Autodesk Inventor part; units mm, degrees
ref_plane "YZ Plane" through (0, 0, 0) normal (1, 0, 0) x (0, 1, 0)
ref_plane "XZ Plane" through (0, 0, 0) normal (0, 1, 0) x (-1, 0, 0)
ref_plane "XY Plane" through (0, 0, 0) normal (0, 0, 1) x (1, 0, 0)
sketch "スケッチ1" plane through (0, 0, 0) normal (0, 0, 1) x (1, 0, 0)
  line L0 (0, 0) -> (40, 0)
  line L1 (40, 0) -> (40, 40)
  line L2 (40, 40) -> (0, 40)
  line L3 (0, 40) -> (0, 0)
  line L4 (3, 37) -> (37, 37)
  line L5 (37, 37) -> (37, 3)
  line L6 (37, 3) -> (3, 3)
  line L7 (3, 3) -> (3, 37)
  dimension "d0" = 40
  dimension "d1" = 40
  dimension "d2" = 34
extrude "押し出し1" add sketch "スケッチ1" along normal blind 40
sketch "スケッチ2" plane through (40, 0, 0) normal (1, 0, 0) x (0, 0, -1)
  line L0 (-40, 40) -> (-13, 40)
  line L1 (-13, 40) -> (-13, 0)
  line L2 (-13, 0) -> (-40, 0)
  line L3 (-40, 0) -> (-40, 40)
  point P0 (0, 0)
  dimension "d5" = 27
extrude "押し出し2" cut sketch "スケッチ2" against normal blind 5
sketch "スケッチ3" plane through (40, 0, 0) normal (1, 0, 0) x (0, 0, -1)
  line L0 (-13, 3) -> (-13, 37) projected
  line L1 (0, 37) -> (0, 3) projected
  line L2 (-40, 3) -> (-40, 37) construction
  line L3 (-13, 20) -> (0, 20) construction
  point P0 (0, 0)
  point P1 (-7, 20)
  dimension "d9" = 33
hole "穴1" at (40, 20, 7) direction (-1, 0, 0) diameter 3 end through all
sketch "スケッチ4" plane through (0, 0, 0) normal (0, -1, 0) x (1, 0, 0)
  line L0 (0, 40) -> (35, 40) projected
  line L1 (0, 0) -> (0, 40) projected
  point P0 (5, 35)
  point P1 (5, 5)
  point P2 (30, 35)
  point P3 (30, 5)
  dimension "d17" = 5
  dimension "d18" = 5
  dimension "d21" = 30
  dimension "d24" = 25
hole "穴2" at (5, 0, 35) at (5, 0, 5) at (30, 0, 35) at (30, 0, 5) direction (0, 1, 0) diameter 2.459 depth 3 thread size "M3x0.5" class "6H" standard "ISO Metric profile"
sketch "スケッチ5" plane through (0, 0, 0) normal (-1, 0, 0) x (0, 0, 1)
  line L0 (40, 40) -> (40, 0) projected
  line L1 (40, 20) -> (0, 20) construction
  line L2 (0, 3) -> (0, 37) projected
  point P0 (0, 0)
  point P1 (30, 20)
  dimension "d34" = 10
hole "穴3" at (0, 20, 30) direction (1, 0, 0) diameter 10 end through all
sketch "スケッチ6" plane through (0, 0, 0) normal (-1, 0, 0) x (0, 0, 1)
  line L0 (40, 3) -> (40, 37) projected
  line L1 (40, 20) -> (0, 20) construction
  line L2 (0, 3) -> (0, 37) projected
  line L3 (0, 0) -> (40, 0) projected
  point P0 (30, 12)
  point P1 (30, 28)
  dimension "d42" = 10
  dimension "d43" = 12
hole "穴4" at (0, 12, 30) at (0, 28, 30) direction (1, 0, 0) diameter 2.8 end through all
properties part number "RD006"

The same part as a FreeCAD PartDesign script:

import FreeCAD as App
import Part
import Sketcher
Q = App.Units.Quantity

doc = App.newDocument("Part")
body = doc.addObject("PartDesign::Body", "Body")

# Sketch on XY plane
sketch1 = doc.addObject("Sketcher::SketchObject", "Sketch")
body.addObject(sketch1)
sketch1.AttachmentSupport = (doc.XY_Plane, [""])
sketch1.MapMode = "FlatFace"
sketch1.addGeometry(Part.LineSegment(App.Vector(0, 40, 0), App.Vector(0, 0, 0)), False)
sketch1.addGeometry(Part.LineSegment(App.Vector(0, 0, 0), App.Vector(40, 0, 0)), False)
sketch1.addGeometry(Part.LineSegment(App.Vector(40, 0, 0), App.Vector(40, 40, 0)), False)
sketch1.addGeometry(Part.LineSegment(App.Vector(40, 40, 0), App.Vector(0, 40, 0)), False)
sketch1.addGeometry(Part.LineSegment(App.Vector(3, 3, 0), App.Vector(3, 37, 0)), False)
sketch1.addGeometry(Part.LineSegment(App.Vector(3, 37, 0), App.Vector(37, 37, 0)), False)
sketch1.addGeometry(Part.LineSegment(App.Vector(37, 37, 0), App.Vector(37, 3, 0)), False)
sketch1.addGeometry(Part.LineSegment(App.Vector(37, 3, 0), App.Vector(3, 3, 0)), False)
sketch1.addConstraint(Sketcher.Constraint("Coincident", 0, 2, 1, 1))
sketch1.addConstraint(Sketcher.Constraint("Coincident", 1, 2, 2, 1))
sketch1.addConstraint(Sketcher.Constraint("Coincident", 2, 2, 3, 1))
sketch1.addConstraint(Sketcher.Constraint("Coincident", 3, 2, 0, 1))
sketch1.addConstraint(Sketcher.Constraint("Coincident", 4, 2, 5, 1))
sketch1.addConstraint(Sketcher.Constraint("Coincident", 5, 2, 6, 1))
sketch1.addConstraint(Sketcher.Constraint("Coincident", 6, 2, 7, 1))
sketch1.addConstraint(Sketcher.Constraint("Coincident", 7, 2, 4, 1))
sketch1.addConstraint(Sketcher.Constraint("Vertical", 0))
sketch1.addConstraint(Sketcher.Constraint("Horizontal", 1))
sketch1.addConstraint(Sketcher.Constraint("Vertical", 2))
sketch1.addConstraint(Sketcher.Constraint("Horizontal", 3))
sketch1.addConstraint(Sketcher.Constraint("Vertical", 4))
sketch1.addConstraint(Sketcher.Constraint("Horizontal", 5))
sketch1.addConstraint(Sketcher.Constraint("Vertical", 6))
sketch1.addConstraint(Sketcher.Constraint("Horizontal", 7))
sketch1.addConstraint(Sketcher.Constraint("Coincident", 0, 2, -1, 1))
sketch1.addConstraint(Sketcher.Constraint("Equal", 3, 0))
sketch1.addConstraint(Sketcher.Constraint("Equal", 7, 4))
sketch1.addConstraint(Sketcher.Constraint("DistanceX", 1, 1, 1, 2, Q("40 mm")))
sketch1.addConstraint(Sketcher.Constraint("DistanceX", 5, 1, 5, 2, Q("34 mm")))
sketch1.addConstraint(Sketcher.Constraint("DistanceX", -1, 1, 4, 2, Q("3 mm")))
sketch1.addConstraint(Sketcher.Constraint("DistanceY", -1, 1, 4, 2, Q("37 mm")))
pad1 = doc.addObject("PartDesign::Pad", "Pad")
body.addObject(pad1)
pad1.Profile = sketch1
pad1.Length = 40

# Sketch on YZ plane
sketch2 = doc.addObject("Sketcher::SketchObject", "Sketch001")
body.addObject(sketch2)
sketch2.AttachmentSupport = (doc.YZ_Plane, [""])
sketch2.MapMode = "FlatFace"
sketch2.AttachmentOffset = App.Placement(App.Vector(0, 0, 40), App.Rotation())
sketch2.addGeometry(Part.LineSegment(App.Vector(40, 13, 0), App.Vector(40, 40, 0)), False)
sketch2.addGeometry(Part.LineSegment(App.Vector(40, 40, 0), App.Vector(0, 40, 0)), False)
sketch2.addGeometry(Part.LineSegment(App.Vector(0, 40, 0), App.Vector(0, 13, 0)), False)
sketch2.addGeometry(Part.LineSegment(App.Vector(0, 13, 0), App.Vector(40, 13, 0)), False)
sketch2.addConstraint(Sketcher.Constraint("Coincident", 0, 2, 1, 1))
sketch2.addConstraint(Sketcher.Constraint("Coincident", 1, 2, 2, 1))
sketch2.addConstraint(Sketcher.Constraint("Coincident", 2, 2, 3, 1))
sketch2.addConstraint(Sketcher.Constraint("Coincident", 3, 2, 0, 1))
sketch2.addConstraint(Sketcher.Constraint("Vertical", 0))
sketch2.addConstraint(Sketcher.Constraint("Horizontal", 1))
sketch2.addConstraint(Sketcher.Constraint("Vertical", 2))
sketch2.addConstraint(Sketcher.Constraint("Horizontal", 3))
sketch2.addConstraint(Sketcher.Constraint("PointOnObject", 1, 2, -2))
sketch2.addConstraint(Sketcher.Constraint("DistanceY", 0, 1, 0, 2, Q("27 mm")))
sketch2.addConstraint(Sketcher.Constraint("DistanceX", 1, 2, 1, 1, Q("40 mm")))
sketch2.addConstraint(Sketcher.Constraint("DistanceY", -1, 1, 0, 2, Q("40 mm")))
pocket1 = doc.addObject("PartDesign::Pocket", "Pocket")
body.addObject(pocket1)
pocket1.Profile = sketch2
pocket1.Length = 5

# Sketch on YZ plane
sketch3 = doc.addObject("Sketcher::SketchObject", "Sketch002")
body.addObject(sketch3)
sketch3.AttachmentSupport = (doc.YZ_Plane, [""])
sketch3.MapMode = "FlatFace"
sketch3.AttachmentOffset = App.Placement(App.Vector(0, 0, 40), App.Rotation())
sketch3.addGeometry(Part.Circle(App.Vector(20, 7, 0), App.Vector(0, 0, 1), 1.5), False)
sketch3.addConstraint(Sketcher.Constraint("Diameter", 0, Q("3 mm")))
sketch3.addConstraint(Sketcher.Constraint("DistanceX", -1, 1, 0, 3, Q("20 mm")))
sketch3.addConstraint(Sketcher.Constraint("DistanceY", -1, 1, 0, 3, Q("7 mm")))
doc.recompute()
hole = doc.addObject("PartDesign::Hole", "Hole")
body.addObject(hole)
hole.Profile = sketch3
hole.ThreadType = "None"
hole.Diameter = 3
hole.DepthType = "ThroughAll"

# Sketch on XZ plane
sketch4 = doc.addObject("Sketcher::SketchObject", "Sketch003")
body.addObject(sketch4)
sketch4.AttachmentSupport = (doc.XZ_Plane, [""])
sketch4.MapMode = "FlatFace"
sketch4.addGeometry(Part.Circle(App.Vector(5, 35, 0), App.Vector(0, 0, 1), 1.2), False)
sketch4.addGeometry(Part.Circle(App.Vector(5, 5, 0), App.Vector(0, 0, 1), 1.2), False)
sketch4.addGeometry(Part.Circle(App.Vector(30, 35, 0), App.Vector(0, 0, 1), 1.2), False)
sketch4.addGeometry(Part.Circle(App.Vector(30, 5, 0), App.Vector(0, 0, 1), 1.2), False)
sketch4.addConstraint(Sketcher.Constraint("Equal", 0, 1))
sketch4.addConstraint(Sketcher.Constraint("Equal", 1, 2))
sketch4.addConstraint(Sketcher.Constraint("Equal", 2, 3))
sketch4.addConstraint(Sketcher.Constraint("Horizontal", 0, 3, 2, 3))
sketch4.addConstraint(Sketcher.Constraint("Horizontal", 1, 3, 3, 3))
sketch4.addConstraint(Sketcher.Constraint("Vertical", 0, 3, 1, 3))
sketch4.addConstraint(Sketcher.Constraint("Vertical", 2, 3, 3, 3))
sketch4.addConstraint(Sketcher.Constraint("Diameter", 0, Q("2.459 mm")))
sketch4.addConstraint(Sketcher.Constraint("DistanceX", -1, 1, 0, 3, Q("5 mm")))
sketch4.addConstraint(Sketcher.Constraint("DistanceY", -1, 1, 0, 3, Q("35 mm")))
sketch4.addConstraint(Sketcher.Constraint("DistanceY", -1, 1, 1, 3, Q("5 mm")))
sketch4.addConstraint(Sketcher.Constraint("DistanceX", -1, 1, 2, 3, Q("30 mm")))
doc.recompute()
hole2 = doc.addObject("PartDesign::Hole", "Hole001")
body.addObject(hole2)
hole2.Profile = sketch4
hole2.ThreadType = "None"
hole2.Diameter = 2.459
hole2.DepthType = "Dimension"
hole2.Depth = 3
hole2.DrillPoint = "Flat"

# Sketch on YZ plane
sketch5 = doc.addObject("Sketcher::SketchObject", "Sketch004")
body.addObject(sketch5)
sketch5.AttachmentSupport = (doc.YZ_Plane, [""])
sketch5.MapMode = "FlatFace"
sketch5.addGeometry(Part.Circle(App.Vector(20, 30, 0), App.Vector(0, 0, 1), 5), False)
sketch5.addConstraint(Sketcher.Constraint("Diameter", 0, Q("10 mm")))
sketch5.addConstraint(Sketcher.Constraint("DistanceX", -1, 1, 0, 3, Q("20 mm")))
sketch5.addConstraint(Sketcher.Constraint("DistanceY", -1, 1, 0, 3, Q("30 mm")))
doc.recompute()
hole3 = doc.addObject("PartDesign::Hole", "Hole002")
body.addObject(hole3)
hole3.Profile = sketch5
hole3.ThreadType = "None"
hole3.Diameter = 10
hole3.DepthType = "ThroughAll"
hole3.Reversed = True

# Sketch on YZ plane
sketch6 = doc.addObject("Sketcher::SketchObject", "Sketch005")
body.addObject(sketch6)
sketch6.AttachmentSupport = (doc.YZ_Plane, [""])
sketch6.MapMode = "FlatFace"
sketch6.addGeometry(Part.Circle(App.Vector(12, 30, 0), App.Vector(0, 0, 1), 1.4), False)
sketch6.addGeometry(Part.Circle(App.Vector(28, 30, 0), App.Vector(0, 0, 1), 1.4), False)
sketch6.addConstraint(Sketcher.Constraint("Equal", 0, 1))
sketch6.addConstraint(Sketcher.Constraint("Horizontal", 0, 3, 1, 3))
sketch6.addConstraint(Sketcher.Constraint("Diameter", 0, Q("2.8 mm")))
sketch6.addConstraint(Sketcher.Constraint("DistanceX", -1, 1, 0, 3, Q("12 mm")))
sketch6.addConstraint(Sketcher.Constraint("DistanceY", -1, 1, 0, 3, Q("30 mm")))
sketch6.addConstraint(Sketcher.Constraint("DistanceX", -1, 1, 1, 3, Q("28 mm")))
doc.recompute()
hole4 = doc.addObject("PartDesign::Hole", "Hole003")
body.addObject(hole4)
hole4.Profile = sketch6
hole4.ThreadType = "None"
hole4.Diameter = 2.8
hole4.DepthType = "ThroughAll"
hole4.Reversed = True

doc.recompute()
